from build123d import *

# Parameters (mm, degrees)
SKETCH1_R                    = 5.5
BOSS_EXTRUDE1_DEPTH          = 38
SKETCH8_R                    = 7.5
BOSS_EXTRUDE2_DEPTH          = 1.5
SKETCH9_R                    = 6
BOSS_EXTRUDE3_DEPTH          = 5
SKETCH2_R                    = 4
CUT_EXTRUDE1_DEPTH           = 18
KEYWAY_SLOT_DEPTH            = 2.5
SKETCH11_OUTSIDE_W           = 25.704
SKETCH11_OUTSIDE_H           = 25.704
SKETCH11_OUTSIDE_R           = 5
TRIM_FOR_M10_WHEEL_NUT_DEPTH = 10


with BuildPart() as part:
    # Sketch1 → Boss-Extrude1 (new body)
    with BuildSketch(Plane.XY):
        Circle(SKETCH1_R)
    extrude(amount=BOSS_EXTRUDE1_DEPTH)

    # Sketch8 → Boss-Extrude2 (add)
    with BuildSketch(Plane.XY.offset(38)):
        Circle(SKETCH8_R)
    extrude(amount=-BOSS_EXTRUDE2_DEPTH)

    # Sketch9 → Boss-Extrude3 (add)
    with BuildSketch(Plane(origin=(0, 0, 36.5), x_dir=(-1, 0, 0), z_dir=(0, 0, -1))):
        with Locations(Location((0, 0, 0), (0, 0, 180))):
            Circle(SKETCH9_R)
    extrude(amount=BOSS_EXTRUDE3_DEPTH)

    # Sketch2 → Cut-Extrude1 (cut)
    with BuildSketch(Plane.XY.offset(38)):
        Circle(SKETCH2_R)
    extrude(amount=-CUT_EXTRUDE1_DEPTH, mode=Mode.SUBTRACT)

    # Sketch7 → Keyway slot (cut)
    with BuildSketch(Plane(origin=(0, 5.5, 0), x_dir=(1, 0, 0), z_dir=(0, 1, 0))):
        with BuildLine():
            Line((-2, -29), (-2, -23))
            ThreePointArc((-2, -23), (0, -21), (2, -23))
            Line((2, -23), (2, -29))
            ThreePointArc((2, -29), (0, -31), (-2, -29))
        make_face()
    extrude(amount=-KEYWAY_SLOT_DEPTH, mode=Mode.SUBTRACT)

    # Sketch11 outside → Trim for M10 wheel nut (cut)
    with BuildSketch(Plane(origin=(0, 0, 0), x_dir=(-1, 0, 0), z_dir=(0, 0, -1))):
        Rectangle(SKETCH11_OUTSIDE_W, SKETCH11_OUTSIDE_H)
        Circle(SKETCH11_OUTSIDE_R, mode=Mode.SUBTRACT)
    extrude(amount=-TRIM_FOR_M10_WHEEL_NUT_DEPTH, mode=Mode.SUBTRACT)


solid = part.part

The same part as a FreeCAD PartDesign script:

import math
import FreeCAD as App
import Part
import Sketcher
from FreeCAD import Vector
Q = App.Units.Quantity

doc = App.newDocument("Part")
body = doc.addObject("PartDesign::Body", "Body")

# Sketch on XY plane
sketch1 = doc.addObject("Sketcher::SketchObject", "Sketch")
body.addObject(sketch1)
sketch1.AttachmentSupport = (doc.XY_Plane, [""])
sketch1.MapMode = "FlatFace"
sketch1.addGeometry(Part.Circle(Vector(0, 0, 0), Vector(0, 0, 1), 6), False)
sketch1.addConstraint([
    Sketcher.Constraint("Coincident", 0, 3, -1, 1),
    Sketcher.Constraint("Diameter", 0, Q("11 mm")),
])
pad1 = doc.addObject("PartDesign::Pad", "Pad")
body.addObject(pad1)
pad1.Profile = sketch1
pad1.Length = 38

# Sketch on XY plane
sketch2 = doc.addObject("Sketcher::SketchObject", "Sketch001")
body.addObject(sketch2)
sketch2.AttachmentSupport = (doc.XY_Plane, [""])
sketch2.MapMode = "FlatFace"
sketch2.AttachmentOffset = App.Placement(Vector(0, 0, 38), App.Rotation())
sketch2.addGeometry(Part.Circle(Vector(0, 0, 0), Vector(0, 0, 1), 8), False)
sketch2.addConstraint([
    Sketcher.Constraint("Coincident", 0, 3, -1, 1),
    Sketcher.Constraint("Diameter", 0, Q("15 mm")),
])
pad2 = doc.addObject("PartDesign::Pad", "Pad001")
body.addObject(pad2)
pad2.Profile = sketch2
pad2.Length = 1.5
pad2.Reversed = True

# Sketch on XY plane
sketch3 = doc.addObject("Sketcher::SketchObject", "Sketch002")
body.addObject(sketch3)
sketch3.AttachmentSupport = (doc.XY_Plane, [""])
sketch3.MapMode = "FlatFace"
sketch3.AttachmentOffset = App.Placement(Vector(0, 0, 36.5), App.Rotation())
sketch3.addGeometry(Part.Circle(Vector(0, 0, 0), Vector(0, 0, 1), 6), False)
sketch3.addConstraint([
    Sketcher.Constraint("Coincident", 0, 3, -1, 1),
    Sketcher.Constraint("Diameter", 0, Q("12 mm")),
])
pad3 = doc.addObject("PartDesign::Pad", "Pad002")
body.addObject(pad3)
pad3.Profile = sketch3
pad3.Length = 5
pad3.Reversed = True

# Sketch on XY plane
sketch4 = doc.addObject("Sketcher::SketchObject", "Sketch003")
body.addObject(sketch4)
sketch4.AttachmentSupport = (doc.XY_Plane, [""])
sketch4.MapMode = "FlatFace"
sketch4.AttachmentOffset = App.Placement(Vector(0, 0, 38), App.Rotation())
sketch4.addGeometry(Part.Circle(Vector(0, 0, 0), Vector(0, 0, 1), 4), False)
sketch4.addConstraint([
    Sketcher.Constraint("Coincident", 0, 3, -1, 1),
    Sketcher.Constraint("Diameter", 0, Q("8 mm")),
])
pocket1 = doc.addObject("PartDesign::Pocket", "Pocket")
body.addObject(pocket1)
pocket1.Profile = sketch4
pocket1.Length = 18

# Sketch on XZ plane
sketch5 = doc.addObject("Sketcher::SketchObject", "Sketch004")
body.addObject(sketch5)
sketch5.AttachmentSupport = (doc.XZ_Plane, [""])
sketch5.MapMode = "FlatFace"
sketch5.AttachmentOffset = App.Placement(Vector(0, 0, -5.5), App.Rotation())
sketch5.addGeometry([
    Part.LineSegment(Vector(-2, 23, 0), Vector(-2, 29, 0)),
    Part.ArcOfCircle(Part.Circle(Vector(0, 29, 0), Vector(0, 0, 1), 2), math.radians(0), math.radians(180)),
    Part.LineSegment(Vector(2, 29, 0), Vector(2, 23, 0)),
    Part.ArcOfCircle(Part.Circle(Vector(0, 23, 0), Vector(0, 0, 1), 2), math.radians(180), math.radians(360)),
], False)
sketch5.addConstraint([
    Sketcher.Constraint("Tangent", 0, 2, 1, 2),
    Sketcher.Constraint("Tangent", 1, 1, 2, 1),
    Sketcher.Constraint("Tangent", 2, 2, 3, 2),
    Sketcher.Constraint("Tangent", 3, 1, 0, 1),
    Sketcher.Constraint("Vertical", 0),
    Sketcher.Constraint("Vertical", 2),
    Sketcher.Constraint("PointOnObject", 1, 3, -2),
    Sketcher.Constraint("Radius", 1, Q("2 mm")),
    Sketcher.Constraint("DistanceY", 0, 1, 0, 2, Q("6 mm")),
    Sketcher.Constraint("DistanceY", -1, 1, 1, 3, Q("29 mm")),
])
pocket2 = doc.addObject("PartDesign::Pocket", "Pocket001")
body.addObject(pocket2)
pocket2.Profile = sketch5
pocket2.Length = 2.5
pocket2.Reversed = True

# Sketch on XY plane
sketch6 = doc.addObject("Sketcher::SketchObject", "Sketch005")
body.addObject(sketch6)
sketch6.AttachmentSupport = (doc.XY_Plane, [""])
sketch6.MapMode = "FlatFace"
sketch6.addGeometry([
    Part.LineSegment(Vector(13, 13, 0), Vector(13, -13, 0)),  # 0
    Part.LineSegment(Vector(13, -13, 0), Vector(-13, -13, 0)),  # 1
    Part.LineSegment(Vector(-13, -13, 0), Vector(-13, 13, 0)),  # 2
    Part.LineSegment(Vector(-13, 13, 0), Vector(13, 13, 0)),  # 3
    Part.Circle(Vector(0, 0, 0), Vector(0, 0, 1), 5),  # 4
], False)
sketch6.addConstraint([
    Sketcher.Constraint("Coincident", 0, 2, 1, 1),
    Sketcher.Constraint("Coincident", 1, 2, 2, 1),
    Sketcher.Constraint("Coincident", 2, 2, 3, 1),
    Sketcher.Constraint("Coincident", 3, 2, 0, 1),
    Sketcher.Constraint("Vertical", 0),
    Sketcher.Constraint("Horizontal", 1),
    Sketcher.Constraint("Vertical", 2),
    Sketcher.Constraint("Horizontal", 3),
    Sketcher.Constraint("Coincident", 4, 3, -1, 1),
    Sketcher.Constraint("Symmetric", 0, 2, 2, 2, -1, 1),
    Sketcher.Constraint("Equal", 3, 0),
    Sketcher.Constraint("Diameter", 4, Q("10 mm")),
    Sketcher.Constraint("DistanceX", 1, 2, 1, 1, Q("25.704 mm")),
])
pocket3 = doc.addObject("PartDesign::Pocket", "Pocket002")
body.addObject(pocket3)
pocket3.Profile = sketch6
pocket3.Length = 10
pocket3.Reversed = True

doc.recompute()
